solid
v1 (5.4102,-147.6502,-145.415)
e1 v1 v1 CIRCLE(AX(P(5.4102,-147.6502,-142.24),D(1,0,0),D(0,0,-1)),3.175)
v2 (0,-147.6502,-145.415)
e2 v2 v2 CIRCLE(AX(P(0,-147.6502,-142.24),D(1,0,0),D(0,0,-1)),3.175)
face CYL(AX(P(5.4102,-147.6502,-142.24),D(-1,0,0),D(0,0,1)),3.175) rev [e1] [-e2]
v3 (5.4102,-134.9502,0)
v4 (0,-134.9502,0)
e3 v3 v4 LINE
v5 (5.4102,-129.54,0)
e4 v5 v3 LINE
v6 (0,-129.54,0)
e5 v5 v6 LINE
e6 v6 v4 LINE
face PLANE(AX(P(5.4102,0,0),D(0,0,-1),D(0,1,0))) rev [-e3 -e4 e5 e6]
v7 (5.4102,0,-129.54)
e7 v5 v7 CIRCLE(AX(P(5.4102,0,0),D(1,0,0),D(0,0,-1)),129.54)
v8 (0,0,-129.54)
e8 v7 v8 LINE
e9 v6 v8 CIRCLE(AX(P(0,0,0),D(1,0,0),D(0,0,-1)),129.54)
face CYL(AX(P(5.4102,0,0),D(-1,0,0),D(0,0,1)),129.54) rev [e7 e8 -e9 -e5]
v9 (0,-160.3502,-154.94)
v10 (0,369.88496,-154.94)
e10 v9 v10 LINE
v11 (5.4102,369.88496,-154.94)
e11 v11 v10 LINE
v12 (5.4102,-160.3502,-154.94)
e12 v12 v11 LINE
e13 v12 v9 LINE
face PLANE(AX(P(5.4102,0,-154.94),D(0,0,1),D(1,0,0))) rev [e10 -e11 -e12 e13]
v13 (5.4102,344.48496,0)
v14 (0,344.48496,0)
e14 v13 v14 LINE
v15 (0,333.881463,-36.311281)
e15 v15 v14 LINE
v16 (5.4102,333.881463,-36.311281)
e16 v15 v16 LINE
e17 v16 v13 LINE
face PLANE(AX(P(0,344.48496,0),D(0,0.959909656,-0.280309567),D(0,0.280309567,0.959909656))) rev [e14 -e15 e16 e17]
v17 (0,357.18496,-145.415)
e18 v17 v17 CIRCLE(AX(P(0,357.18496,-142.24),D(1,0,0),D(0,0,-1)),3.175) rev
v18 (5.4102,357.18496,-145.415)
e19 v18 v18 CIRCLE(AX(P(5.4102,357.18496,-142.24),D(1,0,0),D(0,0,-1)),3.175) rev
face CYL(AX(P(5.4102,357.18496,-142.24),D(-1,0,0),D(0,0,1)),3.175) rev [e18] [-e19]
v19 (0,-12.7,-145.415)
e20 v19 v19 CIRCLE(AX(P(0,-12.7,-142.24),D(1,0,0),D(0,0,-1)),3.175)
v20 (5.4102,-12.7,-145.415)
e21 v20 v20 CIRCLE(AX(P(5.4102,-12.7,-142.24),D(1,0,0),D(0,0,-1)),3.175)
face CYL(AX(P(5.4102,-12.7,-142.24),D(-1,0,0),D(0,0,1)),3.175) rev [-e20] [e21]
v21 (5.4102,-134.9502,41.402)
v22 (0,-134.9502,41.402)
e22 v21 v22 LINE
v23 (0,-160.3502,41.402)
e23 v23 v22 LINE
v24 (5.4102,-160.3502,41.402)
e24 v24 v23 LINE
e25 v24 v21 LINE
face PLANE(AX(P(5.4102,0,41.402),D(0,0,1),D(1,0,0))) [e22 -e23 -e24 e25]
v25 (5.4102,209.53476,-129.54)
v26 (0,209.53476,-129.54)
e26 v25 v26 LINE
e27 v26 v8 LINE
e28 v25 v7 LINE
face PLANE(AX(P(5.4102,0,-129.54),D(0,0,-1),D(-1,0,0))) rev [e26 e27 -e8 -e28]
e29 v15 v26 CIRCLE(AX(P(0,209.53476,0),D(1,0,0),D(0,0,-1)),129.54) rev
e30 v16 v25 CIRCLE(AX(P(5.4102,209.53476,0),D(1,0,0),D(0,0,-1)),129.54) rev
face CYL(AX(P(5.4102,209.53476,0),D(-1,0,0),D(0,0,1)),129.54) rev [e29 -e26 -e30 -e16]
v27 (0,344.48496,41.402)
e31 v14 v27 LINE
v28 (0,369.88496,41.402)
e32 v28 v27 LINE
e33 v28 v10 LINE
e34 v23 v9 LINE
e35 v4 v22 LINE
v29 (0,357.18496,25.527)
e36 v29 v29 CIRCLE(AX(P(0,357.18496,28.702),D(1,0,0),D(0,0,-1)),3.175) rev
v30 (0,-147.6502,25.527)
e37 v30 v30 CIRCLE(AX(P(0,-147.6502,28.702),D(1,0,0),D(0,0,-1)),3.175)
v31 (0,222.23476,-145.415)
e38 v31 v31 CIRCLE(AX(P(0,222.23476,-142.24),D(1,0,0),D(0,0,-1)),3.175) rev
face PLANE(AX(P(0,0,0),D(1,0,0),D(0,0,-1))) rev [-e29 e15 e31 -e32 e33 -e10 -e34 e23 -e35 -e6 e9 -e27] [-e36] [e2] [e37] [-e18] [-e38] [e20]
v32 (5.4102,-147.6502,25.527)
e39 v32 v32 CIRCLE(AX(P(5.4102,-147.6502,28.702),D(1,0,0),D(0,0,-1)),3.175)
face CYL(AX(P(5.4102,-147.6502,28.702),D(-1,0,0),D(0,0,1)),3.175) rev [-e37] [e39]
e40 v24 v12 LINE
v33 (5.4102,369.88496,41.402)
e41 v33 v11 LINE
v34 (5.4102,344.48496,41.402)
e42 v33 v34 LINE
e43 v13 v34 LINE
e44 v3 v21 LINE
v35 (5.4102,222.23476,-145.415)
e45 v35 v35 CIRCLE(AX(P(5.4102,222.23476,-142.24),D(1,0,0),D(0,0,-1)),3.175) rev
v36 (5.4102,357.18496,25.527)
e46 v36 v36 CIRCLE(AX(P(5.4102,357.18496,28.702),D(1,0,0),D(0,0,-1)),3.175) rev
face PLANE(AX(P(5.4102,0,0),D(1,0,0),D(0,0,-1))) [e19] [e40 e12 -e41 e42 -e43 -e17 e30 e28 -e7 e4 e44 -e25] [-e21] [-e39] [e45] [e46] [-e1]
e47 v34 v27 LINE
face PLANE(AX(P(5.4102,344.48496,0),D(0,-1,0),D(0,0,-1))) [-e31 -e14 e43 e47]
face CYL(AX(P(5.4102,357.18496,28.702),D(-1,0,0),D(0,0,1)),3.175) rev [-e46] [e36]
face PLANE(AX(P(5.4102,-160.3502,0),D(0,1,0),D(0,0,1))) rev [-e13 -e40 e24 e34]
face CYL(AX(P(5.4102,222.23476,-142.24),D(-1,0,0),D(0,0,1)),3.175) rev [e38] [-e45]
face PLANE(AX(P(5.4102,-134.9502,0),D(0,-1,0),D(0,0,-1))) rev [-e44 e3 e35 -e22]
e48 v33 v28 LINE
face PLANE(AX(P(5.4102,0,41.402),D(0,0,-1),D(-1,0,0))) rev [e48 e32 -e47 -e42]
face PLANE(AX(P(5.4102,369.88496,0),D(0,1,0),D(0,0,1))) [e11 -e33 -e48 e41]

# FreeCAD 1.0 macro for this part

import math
import FreeCAD as App
import Part
import Sketcher
Q = App.Units.Quantity


def add_polygon(sketch, points):
    """Adds a closed chain of lines whose ends are joined by coincident constraints."""
    first, n = sketch.GeometryCount, len(points)
    for a, b in zip(points, points[1:] + points[:1]):
        sketch.addGeometry(Part.LineSegment(App.Vector(*a, 0), App.Vector(*b, 0)), False)
    for i in range(n):
        sketch.addConstraint(Sketcher.Constraint("Coincident", first + i, 2, first + (i + 1) % n, 1))

doc = App.newDocument("Part")
body = doc.addObject("PartDesign::Body", "Body")

sketch1 = body.newObject("Sketcher::SketchObject", "Sketch")
sketch1.AttachmentSupport = (doc.getObject("YZ_Plane"), [""])
sketch1.MapMode = "FlatFace"
sketch1.addGeometry(Part.ArcOfCircle(Part.Circle(App.Vector(0, 0, 0), App.Vector(0, 0, 1), 129.54), math.radians(-122.287609), math.radians(-90)), False)
sketch1.addGeometry(Part.ArcOfCircle(Part.Circle(App.Vector(0, 0, 0), App.Vector(0, 0, 1), 129.54), math.radians(-180), math.radians(-122.287609)), False)
sketch1.addGeometry(Part.LineSegment(App.Vector(-129.54, 0, 0), App.Vector(-134.9502, 0, 0)), False)
sketch1.addGeometry(Part.LineSegment(App.Vector(-134.9502, 0, 0), App.Vector(-134.9502, 41.402, 0)), False)
sketch1.addGeometry(Part.LineSegment(App.Vector(-134.9502, 41.402, 0), App.Vector(-160.3502, 41.402, 0)), False)
sketch1.addGeometry(Part.LineSegment(App.Vector(-160.3502, 41.402, 0), App.Vector(-160.3502, -154.94, 0)), False)
sketch1.addGeometry(Part.LineSegment(App.Vector(-160.3502, -154.94, 0), App.Vector(369.88496, -154.94, 0)), False)
sketch1.addGeometry(Part.LineSegment(App.Vector(369.88496, -154.94, 0), App.Vector(369.88496, 41.402, 0)), False)
sketch1.addGeometry(Part.LineSegment(App.Vector(369.88496, 41.402, 0), App.Vector(344.48496, 41.402, 0)), False)
sketch1.addGeometry(Part.LineSegment(App.Vector(344.48496, 41.402, 0), App.Vector(344.48496, 0, 0)), False)
sketch1.addGeometry(Part.LineSegment(App.Vector(344.48496, 0, 0), App.Vector(339.07476, 0, 0)), False)
sketch1.addGeometry(Part.ArcOfCircle(Part.Circle(App.Vector(209.53476, 0, 0), App.Vector(0, 0, 1), 129.54), math.radians(-57.712391), math.radians(0)), False)
sketch1.addGeometry(Part.ArcOfCircle(Part.Circle(App.Vector(209.53476, 0, 0), App.Vector(0, 0, 1), 129.54), math.radians(-90), math.radians(-57.712391)), False)
sketch1.addGeometry(Part.LineSegment(App.Vector(209.53476, -129.54, 0), App.Vector(0, -129.54, 0)), False)
sketch1.addGeometry(Part.Circle(App.Vector(-147.6502, 28.702, 0), App.Vector(0, 0, 1), 3.175), False)
sketch1.addGeometry(Part.Circle(App.Vector(-147.6502, -142.24, 0), App.Vector(0, 0, 1), 3.175), False)
sketch1.addGeometry(Part.Circle(App.Vector(-12.7, -142.24, 0), App.Vector(0, 0, 1), 3.175), False)
sketch1.addGeometry(Part.Circle(App.Vector(357.18496, 28.702, 0), App.Vector(0, 0, 1), 3.175), False)
sketch1.addGeometry(Part.Circle(App.Vector(222.23476, -142.24, 0), App.Vector(0, 0, 1), 3.175), False)
sketch1.addGeometry(Part.Circle(App.Vector(357.18496, -142.24, 0), App.Vector(0, 0, 1), 3.175), False)
sketch1.addConstraint(Sketcher.Constraint("Tangent", 0, 1, 1, 2))
sketch1.addConstraint(Sketcher.Constraint("Coincident", 1, 1, 2, 1))
sketch1.addConstraint(Sketcher.Constraint("Coincident", 2, 2, 3, 1))
sketch1.addConstraint(Sketcher.Constraint("Coincident", 3, 2, 4, 1))
sketch1.addConstraint(Sketcher.Constraint("Coincident", 4, 2, 5, 1))
sketch1.addConstraint(Sketcher.Constraint("Coincident", 5, 2, 6, 1))
sketch1.addConstraint(Sketcher.Constraint("Coincident", 6, 2, 7, 1))
sketch1.addConstraint(Sketcher.Constraint("Coincident", 7, 2, 8, 1))
sketch1.addConstraint(Sketcher.Constraint("Coincident", 8, 2, 9, 1))
sketch1.addConstraint(Sketcher.Constraint("Coincident", 9, 2, 10, 1))
sketch1.addConstraint(Sketcher.Constraint("Coincident", 10, 2, 11, 2))
sketch1.addConstraint(Sketcher.Constraint("Tangent", 11, 1, 12, 2))
sketch1.addConstraint(Sketcher.Constraint("Tangent", 12, 1, 13, 1))
sketch1.addConstraint(Sketcher.Constraint("Tangent", 13, 2, 0, 2))
sketch1.addConstraint(Sketcher.Constraint("Horizontal", 2))
sketch1.addConstraint(Sketcher.Constraint("Vertical", 3))
sketch1.addConstraint(Sketcher.Constraint("Horizontal", 4))
sketch1.addConstraint(Sketcher.Constraint("Vertical", 5))
sketch1.addConstraint(Sketcher.Constraint("Horizontal", 6))
sketch1.addConstraint(Sketcher.Constraint("Vertical", 7))
sketch1.addConstraint(Sketcher.Constraint("Horizontal", 8))
sketch1.addConstraint(Sketcher.Constraint("Vertical", 9))
sketch1.addConstraint(Sketcher.Constraint("Horizontal", 10))
sketch1.addConstraint(Sketcher.Constraint("Horizontal", 13))
sketch1.addConstraint(Sketcher.Constraint("Coincident", 0, 3, -1, 1))
sketch1.addConstraint(Sketcher.Constraint("Equal", 0, 1))
sketch1.addConstraint(Sketcher.Constraint("Equal", 1, 11))
sketch1.addConstraint(Sketcher.Constraint("Equal", 11, 12))
sketch1.addConstraint(Sketcher.Constraint("Equal", 14, 15))
sketch1.addConstraint(Sketcher.Constraint("Equal", 15, 16))
sketch1.addConstraint(Sketcher.Constraint("Equal", 16, 17))
sketch1.addConstraint(Sketcher.Constraint("Equal", 17, 18))
sketch1.addConstraint(Sketcher.Constraint("Equal", 18, 19))
sketch1.addConstraint(Sketcher.Constraint("PointOnObject", 1, 1, -1))
sketch1.addConstraint(Sketcher.Constraint("PointOnObject", 9, 2, -1))
sketch1.addConstraint(Sketcher.Constraint("Horizontal", 15, 3, 16, 3))
sketch1.addConstraint(Sketcher.Constraint("Horizontal", 14, 3, 17, 3))
sketch1.addConstraint(Sketcher.Constraint("Horizontal", 16, 3, 18, 3))
sketch1.addConstraint(Sketcher.Constraint("Horizontal", 18, 3, 19, 3))
sketch1.addConstraint(Sketcher.Constraint("Horizontal", 4, 2, 7, 2))
sketch1.addConstraint(Sketcher.Constraint("Horizontal", 0, 1, 11, 1))
sketch1.addConstraint(Sketcher.Constraint("Vertical", 14, 3, 15, 3))
sketch1.addConstraint(Sketcher.Constraint("Vertical", 17, 3, 19, 3))
sketch1.addConstraint(Sketcher.Constraint("Equal", 4, 8))
sketch1.addConstraint(Sketcher.Constraint("Equal", 2, 10))
sketch1.addConstraint(Sketcher.Constraint("Radius", 0, Q("5.1 in")))
sketch1.addConstraint(Sketcher.Constraint("Diameter", 14, Q("0.25 in")))
sketch1.addConstraint(Sketcher.Constraint("DistanceX", 4, 2, 4, 1, Q("1 in")))
sketch1.addConstraint(Sketcher.Constraint("DistanceY", 3, 1, 3, 2, Q("1.63 in")))
sketch1.addConstraint(Sketcher.Constraint("DistanceY", 5, 2, 5, 1, Q("7.73 in")))
sketch1.addConstraint(Sketcher.Constraint("DistanceY", 15, 3, -1, 1, Q("5.6 in")))
sketch1.addConstraint(Sketcher.Constraint("DistanceX", 16, 3, -1, 1, Q("0.5 in")))
sketch1.addConstraint(Sketcher.Constraint("DistanceX", 11, 3, 18, 3, Q("0.5 in")))
sketch1.addConstraint(Sketcher.Constraint("DistanceX", 14, 3, 2, 2, Q("0.5 in")))
sketch1.addConstraint(Sketcher.Constraint("DistanceY", 14, 3, 3, 2, Q("0.5 in")))
sketch1.addConstraint(Sketcher.Constraint("DistanceX", 19, 3, 6, 2, Q("0.5 in")))
sketch1.addConstraint(Sketcher.Constraint("DistanceX", 2, 2, 2, 1, Q("0.213 in")))
sketch1.addConstraint(Sketcher.Constraint("DistanceX", 6, 1, 6, 2, Q("20.8754 in")))
sketch1.addConstraint(Sketcher.Constraint("DistanceX", 0, 1, -1, 1, 69.196321))
pad1 = body.newObject("PartDesign::Pad", "Pad")
pad1.Profile = sketch1
pad1.Length = Q("0.213 in")

sketch2 = body.newObject("Sketcher::SketchObject", "Sketch001")
sketch2.AttachmentSupport = (doc.getObject("YZ_Plane"), [""])
sketch2.MapMode = "FlatFace"
sketch2.AttachmentOffset = App.Placement(App.Vector(0, 0, 0.213 * 25.4), App.Rotation())
add_polygon(sketch2, [(333.881463, -36.311281), (344.48496, 0), (339.07476, 0)])
sketch2.addConstraint(Sketcher.Constraint("Horizontal", 1))
sketch2.addConstraint(Sketcher.Constraint("PointOnObject", 0, 2, -1))
sketch2.addConstraint(Sketcher.Constraint("DistanceX", 1, 2, 1, 1, Q("0.213 in")))
sketch2.addConstraint(Sketcher.Constraint("DistanceX", -1, 1, 0, 2, Q("13.5624 in")))
sketch2.addConstraint(Sketcher.Constraint("Distance", 0, 37.827811))
sketch2.addConstraint(Sketcher.Constraint("DistanceY", 2, 2, -1, 1, 36.311281))
pocket1 = body.newObject("PartDesign::Pocket", "Pocket")
pocket1.Profile = sketch2
pocket1.Length = Q("0.213 in")

doc.recompute()
